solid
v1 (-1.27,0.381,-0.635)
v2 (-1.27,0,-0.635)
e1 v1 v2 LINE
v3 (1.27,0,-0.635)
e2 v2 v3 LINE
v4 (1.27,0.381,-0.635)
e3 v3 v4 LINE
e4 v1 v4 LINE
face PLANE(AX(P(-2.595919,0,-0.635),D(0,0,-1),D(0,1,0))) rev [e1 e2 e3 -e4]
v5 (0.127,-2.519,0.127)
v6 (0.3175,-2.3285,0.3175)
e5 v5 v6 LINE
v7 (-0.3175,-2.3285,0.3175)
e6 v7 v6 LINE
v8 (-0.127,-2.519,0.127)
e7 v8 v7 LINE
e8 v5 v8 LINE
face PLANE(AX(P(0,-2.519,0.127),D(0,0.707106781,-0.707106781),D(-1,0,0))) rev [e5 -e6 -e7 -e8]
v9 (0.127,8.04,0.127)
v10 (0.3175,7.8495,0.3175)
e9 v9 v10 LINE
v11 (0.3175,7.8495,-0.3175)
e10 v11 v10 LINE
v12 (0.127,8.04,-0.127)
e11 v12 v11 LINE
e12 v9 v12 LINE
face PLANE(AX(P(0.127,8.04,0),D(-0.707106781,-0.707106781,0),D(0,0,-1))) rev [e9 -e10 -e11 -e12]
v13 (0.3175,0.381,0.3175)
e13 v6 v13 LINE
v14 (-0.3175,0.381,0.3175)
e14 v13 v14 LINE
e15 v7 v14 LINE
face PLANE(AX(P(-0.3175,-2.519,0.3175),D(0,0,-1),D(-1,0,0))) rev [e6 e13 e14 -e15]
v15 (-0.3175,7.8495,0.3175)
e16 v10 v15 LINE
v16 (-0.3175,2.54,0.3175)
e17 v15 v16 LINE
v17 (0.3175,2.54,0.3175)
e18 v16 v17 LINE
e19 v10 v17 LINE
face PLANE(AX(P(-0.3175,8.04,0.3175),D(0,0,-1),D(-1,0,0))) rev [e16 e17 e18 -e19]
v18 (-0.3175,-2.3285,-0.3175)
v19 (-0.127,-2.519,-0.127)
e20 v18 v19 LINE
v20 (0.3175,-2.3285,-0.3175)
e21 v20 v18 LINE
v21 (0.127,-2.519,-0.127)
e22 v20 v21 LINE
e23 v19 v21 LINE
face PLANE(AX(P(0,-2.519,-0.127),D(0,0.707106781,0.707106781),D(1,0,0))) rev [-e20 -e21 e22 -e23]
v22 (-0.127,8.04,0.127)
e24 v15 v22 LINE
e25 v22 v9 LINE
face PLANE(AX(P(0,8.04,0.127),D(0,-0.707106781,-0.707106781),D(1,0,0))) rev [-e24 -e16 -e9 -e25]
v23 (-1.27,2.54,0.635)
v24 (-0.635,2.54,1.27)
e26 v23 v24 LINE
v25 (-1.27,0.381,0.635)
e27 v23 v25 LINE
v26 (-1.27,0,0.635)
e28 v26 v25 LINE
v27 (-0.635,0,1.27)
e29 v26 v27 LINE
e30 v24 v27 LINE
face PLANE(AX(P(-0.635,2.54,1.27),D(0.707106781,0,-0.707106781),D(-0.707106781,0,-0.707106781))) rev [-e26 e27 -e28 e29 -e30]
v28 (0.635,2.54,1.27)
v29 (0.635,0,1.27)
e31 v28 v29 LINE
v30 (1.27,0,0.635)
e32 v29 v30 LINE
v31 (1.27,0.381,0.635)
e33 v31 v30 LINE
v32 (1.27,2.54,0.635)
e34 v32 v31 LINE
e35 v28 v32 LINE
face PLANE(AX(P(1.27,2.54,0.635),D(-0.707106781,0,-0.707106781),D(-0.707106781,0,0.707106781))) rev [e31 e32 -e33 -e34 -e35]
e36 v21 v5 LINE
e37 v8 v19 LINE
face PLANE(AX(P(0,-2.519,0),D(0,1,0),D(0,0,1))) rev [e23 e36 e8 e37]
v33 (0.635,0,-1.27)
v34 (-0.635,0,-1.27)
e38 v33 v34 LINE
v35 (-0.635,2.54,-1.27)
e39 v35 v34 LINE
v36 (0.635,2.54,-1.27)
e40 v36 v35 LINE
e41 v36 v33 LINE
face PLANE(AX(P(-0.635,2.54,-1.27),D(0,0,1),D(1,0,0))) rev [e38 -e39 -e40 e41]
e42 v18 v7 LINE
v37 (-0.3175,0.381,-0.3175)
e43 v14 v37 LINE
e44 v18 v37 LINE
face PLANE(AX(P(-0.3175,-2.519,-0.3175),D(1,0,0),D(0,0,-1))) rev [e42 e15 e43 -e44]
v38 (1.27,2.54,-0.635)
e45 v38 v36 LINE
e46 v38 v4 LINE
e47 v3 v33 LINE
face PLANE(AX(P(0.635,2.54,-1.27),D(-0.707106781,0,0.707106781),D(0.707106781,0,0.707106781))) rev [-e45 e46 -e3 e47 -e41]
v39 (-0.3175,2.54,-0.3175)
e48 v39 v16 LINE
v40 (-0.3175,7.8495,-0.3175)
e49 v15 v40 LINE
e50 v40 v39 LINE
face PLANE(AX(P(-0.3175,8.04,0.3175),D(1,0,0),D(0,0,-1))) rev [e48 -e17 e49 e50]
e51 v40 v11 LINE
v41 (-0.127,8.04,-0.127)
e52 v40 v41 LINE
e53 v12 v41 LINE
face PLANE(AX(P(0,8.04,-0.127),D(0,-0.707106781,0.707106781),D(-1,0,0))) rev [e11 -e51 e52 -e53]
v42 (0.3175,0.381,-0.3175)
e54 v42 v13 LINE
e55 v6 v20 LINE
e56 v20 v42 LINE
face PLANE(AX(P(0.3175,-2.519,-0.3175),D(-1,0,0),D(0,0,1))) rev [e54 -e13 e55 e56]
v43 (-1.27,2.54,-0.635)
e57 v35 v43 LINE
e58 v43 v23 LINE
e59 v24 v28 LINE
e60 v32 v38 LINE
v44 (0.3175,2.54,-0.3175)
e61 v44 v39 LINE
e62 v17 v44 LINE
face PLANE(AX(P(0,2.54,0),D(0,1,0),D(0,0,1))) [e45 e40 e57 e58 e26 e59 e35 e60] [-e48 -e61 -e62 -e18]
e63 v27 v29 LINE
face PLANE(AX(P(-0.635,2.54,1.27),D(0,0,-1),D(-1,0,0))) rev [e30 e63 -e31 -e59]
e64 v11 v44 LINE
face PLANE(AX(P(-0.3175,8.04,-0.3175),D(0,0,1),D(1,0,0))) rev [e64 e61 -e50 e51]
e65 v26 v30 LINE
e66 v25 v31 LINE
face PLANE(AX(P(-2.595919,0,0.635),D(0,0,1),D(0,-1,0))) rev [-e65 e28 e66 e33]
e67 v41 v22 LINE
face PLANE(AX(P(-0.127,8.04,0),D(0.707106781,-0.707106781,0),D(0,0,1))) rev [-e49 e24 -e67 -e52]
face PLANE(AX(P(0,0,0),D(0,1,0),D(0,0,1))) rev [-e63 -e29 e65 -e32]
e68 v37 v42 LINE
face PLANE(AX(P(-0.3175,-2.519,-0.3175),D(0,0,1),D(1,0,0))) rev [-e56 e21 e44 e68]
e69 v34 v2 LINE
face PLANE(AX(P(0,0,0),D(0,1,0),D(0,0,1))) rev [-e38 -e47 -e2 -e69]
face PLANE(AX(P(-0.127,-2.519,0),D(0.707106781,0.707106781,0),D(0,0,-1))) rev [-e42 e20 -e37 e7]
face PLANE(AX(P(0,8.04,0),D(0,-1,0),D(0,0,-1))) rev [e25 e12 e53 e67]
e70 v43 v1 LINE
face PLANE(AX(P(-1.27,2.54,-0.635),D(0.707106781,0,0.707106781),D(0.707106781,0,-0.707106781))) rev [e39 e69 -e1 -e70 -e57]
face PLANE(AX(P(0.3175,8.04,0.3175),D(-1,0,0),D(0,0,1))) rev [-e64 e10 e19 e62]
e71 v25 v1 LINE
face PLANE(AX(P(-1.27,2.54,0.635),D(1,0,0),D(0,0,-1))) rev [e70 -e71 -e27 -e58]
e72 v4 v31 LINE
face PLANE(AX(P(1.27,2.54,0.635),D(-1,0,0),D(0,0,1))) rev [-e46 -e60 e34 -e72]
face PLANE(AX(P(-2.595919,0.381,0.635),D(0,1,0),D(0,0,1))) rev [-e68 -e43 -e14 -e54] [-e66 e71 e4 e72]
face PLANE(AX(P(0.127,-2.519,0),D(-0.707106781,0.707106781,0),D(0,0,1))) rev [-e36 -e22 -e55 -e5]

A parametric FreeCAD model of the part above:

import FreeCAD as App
import Part
import Sketcher

V = App.Vector
Q = App.Units.Quantity


def edges_at(feature, points):
    """Names of the edges that pass closest to the given points."""
    edges = feature.Shape.Edges
    near = lambda p: min(range(len(edges)), key=lambda i: edges[i].distToShape(Part.Vertex(*p))[0])
    return sorted({f"Edge{near(p) + 1}" for p in points})

doc = App.newDocument("Part")
body = doc.addObject("PartDesign::Body", "Body")

# Sketch on XZ plane
sketch1 = body.newObject("Sketcher::SketchObject", "Sketch")
sketch1.AttachmentSupport = (doc.getObject("XZ_Plane"), [""])
sketch1.MapMode = "FlatFace"
sketch1.addGeometry([
    Part.LineSegment(V(1.3, -0.6, 0), V(0.6, -1.3, 0)),  # 0
    Part.LineSegment(V(0.6, -1.3, 0), V(-0.6, -1.3, 0)),  # 1
    Part.LineSegment(V(-0.6, -1.3, 0), V(-1.3, -0.6, 0)),  # 2
    Part.LineSegment(V(-1.3, -0.6, 0), V(-1.3, 0.6, 0)),  # 3
    Part.LineSegment(V(-1.3, 0.6, 0), V(-0.6, 1.3, 0)),  # 4
    Part.LineSegment(V(-0.6, 1.3, 0), V(0.6, 1.3, 0)),  # 5
    Part.LineSegment(V(0.6, 1.3, 0), V(1.3, 0.6, 0)),  # 6
    Part.LineSegment(V(1.3, 0.6, 0), V(1.3, -0.6, 0)),  # 7
], False)
sketch1.addConstraint([
    Sketcher.Constraint("Coincident", 0, 2, 1, 1),
    Sketcher.Constraint("Coincident", 1, 2, 2, 1),
    Sketcher.Constraint("Coincident", 2, 2, 3, 1),
    Sketcher.Constraint("Coincident", 3, 2, 4, 1),
    Sketcher.Constraint("Coincident", 4, 2, 5, 1),
    Sketcher.Constraint("Coincident", 5, 2, 6, 1),
    Sketcher.Constraint("Coincident", 6, 2, 7, 1),
    Sketcher.Constraint("Coincident", 7, 2, 0, 1),
    Sketcher.Constraint("Horizontal", 1),
    Sketcher.Constraint("Vertical", 3),
    Sketcher.Constraint("Horizontal", 5),
    Sketcher.Constraint("Vertical", 7),
    Sketcher.Constraint("Symmetric", 0, 2, 4, 2, -1, 1),
    Sketcher.Constraint("Symmetric", 2, 2, 6, 2, -1, 1),
    Sketcher.Constraint("Perpendicular", 0, 2),
    Sketcher.Constraint("Perpendicular", 2, 4),
    Sketcher.Constraint("Perpendicular", 4, 6),
    Sketcher.Constraint("Horizontal", 3, 2, 6, 2),
    Sketcher.Constraint("Vertical", 1, 2, 4, 2),
    Sketcher.Constraint("Equal", 5, 3),
    Sketcher.Constraint("DistanceX", 1, 2, 1, 1, Q("0.05 in")),
    Sketcher.Constraint("DistanceY", 1, 2, 4, 2, Q("0.1 in")),
])
pad1 = body.newObject("PartDesign::Pad", "Pad")
pad1.Profile = sketch1
pad1.Length = Q("0.1 in")
pad1.Reversed = True

# Sketch on YZ plane
sketch2 = body.newObject("Sketcher::SketchObject", "Sketch001")
sketch2.AttachmentSupport = (doc.getObject("YZ_Plane"), [""])
sketch2.MapMode = "FlatFace"
sketch2.AttachmentOffset = App.Placement(V(0, 0, 0.05 * 25.4), App.Rotation())
sketch2.addGeometry([
    Part.LineSegment(V(0.38, 0.64, 0), V(0, 0.64, 0)),
    Part.LineSegment(V(0, 0.64, 0), V(0, -0.64, 0)),
    Part.LineSegment(V(0, -0.64, 0), V(0.38, -0.64, 0)),
    Part.LineSegment(V(0.38, -0.64, 0), V(0.38, 0.64, 0)),
], False)
sketch2.addConstraint([
    Sketcher.Constraint("Coincident", 0, 2, 1, 1),
    Sketcher.Constraint("Coincident", 1, 2, 2, 1),
    Sketcher.Constraint("Coincident", 2, 2, 3, 1),
    Sketcher.Constraint("Coincident", 3, 2, 0, 1),
    Sketcher.Constraint("Horizontal", 0),
    Sketcher.Constraint("Vertical", 1),
    Sketcher.Constraint("Horizontal", 2),
    Sketcher.Constraint("Vertical", 3),
    Sketcher.Constraint("Symmetric", 0, 2, 1, 2, -1, 1),
    Sketcher.Constraint("DistanceY", 1, 2, 1, 1, Q("0.05 in")),
    Sketcher.Constraint("DistanceX", 0, 2, 0, 1, Q("0.015 in")),
])
pocket1 = body.newObject("PartDesign::Pocket", "Pocket")
pocket1.Profile = sketch2
pocket1.Length = Q("0.1 in")

# Sketch on XZ plane
sketch3 = body.newObject("Sketcher::SketchObject", "Sketch002")
sketch3.AttachmentSupport = (doc.getObject("XZ_Plane"), [""])
sketch3.MapMode = "FlatFace"
sketch3.AttachmentOffset = App.Placement(V(0, 0, -0.1 * 25.4), App.Rotation())
sketch3.addGeometry([
    Part.LineSegment(V(-0.3, -0.3, 0), V(-0.3, 0.3, 0)),
    Part.LineSegment(V(-0.3, 0.3, 0), V(0.3, 0.3, 0)),
    Part.LineSegment(V(0.3, 0.3, 0), V(0.3, -0.3, 0)),
    Part.LineSegment(V(0.3, -0.3, 0), V(-0.3, -0.3, 0)),
], False)
sketch3.addConstraint([
    Sketcher.Constraint("Coincident", 0, 2, 1, 1),
    Sketcher.Constraint("Coincident", 1, 2, 2, 1),
    Sketcher.Constraint("Coincident", 2, 2, 3, 1),
    Sketcher.Constraint("Coincident", 3, 2, 0, 1),
    Sketcher.Constraint("Vertical", 0),
    Sketcher.Constraint("Horizontal", 1),
    Sketcher.Constraint("Vertical", 2),
    Sketcher.Constraint("Horizontal", 3),
    Sketcher.Constraint("Symmetric", 0, 2, 2, 2, -1, 1),
    Sketcher.Constraint("Equal", 3, 0),
    Sketcher.Constraint("DistanceX", 1, 1, 1, 2, Q("0.025 in")),
])
pad2 = body.newObject("PartDesign::Pad", "Pad001")
pad2.Profile = sketch3
pad2.Length = 5.5
pad2.Reversed = True
doc.recompute()

chamfer = body.newObject("PartDesign::Chamfer", "Chamfer")
chamfer.Base = (pad2, edges_at(pad2, [
    (0.318, 8.04, 0),
    (0, 8.04, -0.318),
    (-0.318, 8.04, 0),
    (0, 8.04, 0.318),
]))
chamfer.Size = Q("0.0075 in")

# Sketch on XZ plane
sketch4 = body.newObject("Sketcher::SketchObject", "Sketch003")
sketch4.AttachmentSupport = (doc.getObject("XZ_Plane"), [""])
sketch4.MapMode = "FlatFace"
sketch4.AttachmentOffset = App.Placement(V(0, 0, -0.015 * 25.4), App.Rotation())
sketch4.addGeometry([
    Part.LineSegment(V(-0.3, 0.3, 0), V(-0.3, -0.3, 0)),
    Part.LineSegment(V(-0.3, -0.3, 0), V(0.3, -0.3, 0)),
    Part.LineSegment(V(0.3, -0.3, 0), V(0.3, 0.3, 0)),
    Part.LineSegment(V(0.3, 0.3, 0), V(-0.3, 0.3, 0)),
], False)
sketch4.addConstraint([
    Sketcher.Constraint("Coincident", 0, 2, 1, 1),
    Sketcher.Constraint("Coincident", 1, 2, 2, 1),
    Sketcher.Constraint("Coincident", 2, 2, 3, 1),
    Sketcher.Constraint("Coincident", 3, 2, 0, 1),
    Sketcher.Constraint("Vertical", 0),
    Sketcher.Constraint("Horizontal", 1),
    Sketcher.Constraint("Vertical", 2),
    Sketcher.Constraint("Horizontal", 3),
    Sketcher.Constraint("Symmetric", 0, 2, 2, 2, -1, 1),
    Sketcher.Constraint("Equal", 3, 0),
    Sketcher.Constraint("DistanceX", 1, 1, 1, 2, Q("0.025 in")),
])
pad3 = body.newObject("PartDesign::Pad", "Pad002")
pad3.Profile = sketch4
pad3.Length = 2.9
doc.recompute()

chamfer2 = body.newObject("PartDesign::Chamfer", "Chamfer001")
chamfer2.Base = (pad3, edges_at(pad3, [
    (0.318, -2.519, 0),
    (0, -2.519, 0.318),
    (-0.318, -2.519, 0),
    (0, -2.519, -0.318),
]))
chamfer2.Size = Q("0.0075 in")

doc.recompute()
